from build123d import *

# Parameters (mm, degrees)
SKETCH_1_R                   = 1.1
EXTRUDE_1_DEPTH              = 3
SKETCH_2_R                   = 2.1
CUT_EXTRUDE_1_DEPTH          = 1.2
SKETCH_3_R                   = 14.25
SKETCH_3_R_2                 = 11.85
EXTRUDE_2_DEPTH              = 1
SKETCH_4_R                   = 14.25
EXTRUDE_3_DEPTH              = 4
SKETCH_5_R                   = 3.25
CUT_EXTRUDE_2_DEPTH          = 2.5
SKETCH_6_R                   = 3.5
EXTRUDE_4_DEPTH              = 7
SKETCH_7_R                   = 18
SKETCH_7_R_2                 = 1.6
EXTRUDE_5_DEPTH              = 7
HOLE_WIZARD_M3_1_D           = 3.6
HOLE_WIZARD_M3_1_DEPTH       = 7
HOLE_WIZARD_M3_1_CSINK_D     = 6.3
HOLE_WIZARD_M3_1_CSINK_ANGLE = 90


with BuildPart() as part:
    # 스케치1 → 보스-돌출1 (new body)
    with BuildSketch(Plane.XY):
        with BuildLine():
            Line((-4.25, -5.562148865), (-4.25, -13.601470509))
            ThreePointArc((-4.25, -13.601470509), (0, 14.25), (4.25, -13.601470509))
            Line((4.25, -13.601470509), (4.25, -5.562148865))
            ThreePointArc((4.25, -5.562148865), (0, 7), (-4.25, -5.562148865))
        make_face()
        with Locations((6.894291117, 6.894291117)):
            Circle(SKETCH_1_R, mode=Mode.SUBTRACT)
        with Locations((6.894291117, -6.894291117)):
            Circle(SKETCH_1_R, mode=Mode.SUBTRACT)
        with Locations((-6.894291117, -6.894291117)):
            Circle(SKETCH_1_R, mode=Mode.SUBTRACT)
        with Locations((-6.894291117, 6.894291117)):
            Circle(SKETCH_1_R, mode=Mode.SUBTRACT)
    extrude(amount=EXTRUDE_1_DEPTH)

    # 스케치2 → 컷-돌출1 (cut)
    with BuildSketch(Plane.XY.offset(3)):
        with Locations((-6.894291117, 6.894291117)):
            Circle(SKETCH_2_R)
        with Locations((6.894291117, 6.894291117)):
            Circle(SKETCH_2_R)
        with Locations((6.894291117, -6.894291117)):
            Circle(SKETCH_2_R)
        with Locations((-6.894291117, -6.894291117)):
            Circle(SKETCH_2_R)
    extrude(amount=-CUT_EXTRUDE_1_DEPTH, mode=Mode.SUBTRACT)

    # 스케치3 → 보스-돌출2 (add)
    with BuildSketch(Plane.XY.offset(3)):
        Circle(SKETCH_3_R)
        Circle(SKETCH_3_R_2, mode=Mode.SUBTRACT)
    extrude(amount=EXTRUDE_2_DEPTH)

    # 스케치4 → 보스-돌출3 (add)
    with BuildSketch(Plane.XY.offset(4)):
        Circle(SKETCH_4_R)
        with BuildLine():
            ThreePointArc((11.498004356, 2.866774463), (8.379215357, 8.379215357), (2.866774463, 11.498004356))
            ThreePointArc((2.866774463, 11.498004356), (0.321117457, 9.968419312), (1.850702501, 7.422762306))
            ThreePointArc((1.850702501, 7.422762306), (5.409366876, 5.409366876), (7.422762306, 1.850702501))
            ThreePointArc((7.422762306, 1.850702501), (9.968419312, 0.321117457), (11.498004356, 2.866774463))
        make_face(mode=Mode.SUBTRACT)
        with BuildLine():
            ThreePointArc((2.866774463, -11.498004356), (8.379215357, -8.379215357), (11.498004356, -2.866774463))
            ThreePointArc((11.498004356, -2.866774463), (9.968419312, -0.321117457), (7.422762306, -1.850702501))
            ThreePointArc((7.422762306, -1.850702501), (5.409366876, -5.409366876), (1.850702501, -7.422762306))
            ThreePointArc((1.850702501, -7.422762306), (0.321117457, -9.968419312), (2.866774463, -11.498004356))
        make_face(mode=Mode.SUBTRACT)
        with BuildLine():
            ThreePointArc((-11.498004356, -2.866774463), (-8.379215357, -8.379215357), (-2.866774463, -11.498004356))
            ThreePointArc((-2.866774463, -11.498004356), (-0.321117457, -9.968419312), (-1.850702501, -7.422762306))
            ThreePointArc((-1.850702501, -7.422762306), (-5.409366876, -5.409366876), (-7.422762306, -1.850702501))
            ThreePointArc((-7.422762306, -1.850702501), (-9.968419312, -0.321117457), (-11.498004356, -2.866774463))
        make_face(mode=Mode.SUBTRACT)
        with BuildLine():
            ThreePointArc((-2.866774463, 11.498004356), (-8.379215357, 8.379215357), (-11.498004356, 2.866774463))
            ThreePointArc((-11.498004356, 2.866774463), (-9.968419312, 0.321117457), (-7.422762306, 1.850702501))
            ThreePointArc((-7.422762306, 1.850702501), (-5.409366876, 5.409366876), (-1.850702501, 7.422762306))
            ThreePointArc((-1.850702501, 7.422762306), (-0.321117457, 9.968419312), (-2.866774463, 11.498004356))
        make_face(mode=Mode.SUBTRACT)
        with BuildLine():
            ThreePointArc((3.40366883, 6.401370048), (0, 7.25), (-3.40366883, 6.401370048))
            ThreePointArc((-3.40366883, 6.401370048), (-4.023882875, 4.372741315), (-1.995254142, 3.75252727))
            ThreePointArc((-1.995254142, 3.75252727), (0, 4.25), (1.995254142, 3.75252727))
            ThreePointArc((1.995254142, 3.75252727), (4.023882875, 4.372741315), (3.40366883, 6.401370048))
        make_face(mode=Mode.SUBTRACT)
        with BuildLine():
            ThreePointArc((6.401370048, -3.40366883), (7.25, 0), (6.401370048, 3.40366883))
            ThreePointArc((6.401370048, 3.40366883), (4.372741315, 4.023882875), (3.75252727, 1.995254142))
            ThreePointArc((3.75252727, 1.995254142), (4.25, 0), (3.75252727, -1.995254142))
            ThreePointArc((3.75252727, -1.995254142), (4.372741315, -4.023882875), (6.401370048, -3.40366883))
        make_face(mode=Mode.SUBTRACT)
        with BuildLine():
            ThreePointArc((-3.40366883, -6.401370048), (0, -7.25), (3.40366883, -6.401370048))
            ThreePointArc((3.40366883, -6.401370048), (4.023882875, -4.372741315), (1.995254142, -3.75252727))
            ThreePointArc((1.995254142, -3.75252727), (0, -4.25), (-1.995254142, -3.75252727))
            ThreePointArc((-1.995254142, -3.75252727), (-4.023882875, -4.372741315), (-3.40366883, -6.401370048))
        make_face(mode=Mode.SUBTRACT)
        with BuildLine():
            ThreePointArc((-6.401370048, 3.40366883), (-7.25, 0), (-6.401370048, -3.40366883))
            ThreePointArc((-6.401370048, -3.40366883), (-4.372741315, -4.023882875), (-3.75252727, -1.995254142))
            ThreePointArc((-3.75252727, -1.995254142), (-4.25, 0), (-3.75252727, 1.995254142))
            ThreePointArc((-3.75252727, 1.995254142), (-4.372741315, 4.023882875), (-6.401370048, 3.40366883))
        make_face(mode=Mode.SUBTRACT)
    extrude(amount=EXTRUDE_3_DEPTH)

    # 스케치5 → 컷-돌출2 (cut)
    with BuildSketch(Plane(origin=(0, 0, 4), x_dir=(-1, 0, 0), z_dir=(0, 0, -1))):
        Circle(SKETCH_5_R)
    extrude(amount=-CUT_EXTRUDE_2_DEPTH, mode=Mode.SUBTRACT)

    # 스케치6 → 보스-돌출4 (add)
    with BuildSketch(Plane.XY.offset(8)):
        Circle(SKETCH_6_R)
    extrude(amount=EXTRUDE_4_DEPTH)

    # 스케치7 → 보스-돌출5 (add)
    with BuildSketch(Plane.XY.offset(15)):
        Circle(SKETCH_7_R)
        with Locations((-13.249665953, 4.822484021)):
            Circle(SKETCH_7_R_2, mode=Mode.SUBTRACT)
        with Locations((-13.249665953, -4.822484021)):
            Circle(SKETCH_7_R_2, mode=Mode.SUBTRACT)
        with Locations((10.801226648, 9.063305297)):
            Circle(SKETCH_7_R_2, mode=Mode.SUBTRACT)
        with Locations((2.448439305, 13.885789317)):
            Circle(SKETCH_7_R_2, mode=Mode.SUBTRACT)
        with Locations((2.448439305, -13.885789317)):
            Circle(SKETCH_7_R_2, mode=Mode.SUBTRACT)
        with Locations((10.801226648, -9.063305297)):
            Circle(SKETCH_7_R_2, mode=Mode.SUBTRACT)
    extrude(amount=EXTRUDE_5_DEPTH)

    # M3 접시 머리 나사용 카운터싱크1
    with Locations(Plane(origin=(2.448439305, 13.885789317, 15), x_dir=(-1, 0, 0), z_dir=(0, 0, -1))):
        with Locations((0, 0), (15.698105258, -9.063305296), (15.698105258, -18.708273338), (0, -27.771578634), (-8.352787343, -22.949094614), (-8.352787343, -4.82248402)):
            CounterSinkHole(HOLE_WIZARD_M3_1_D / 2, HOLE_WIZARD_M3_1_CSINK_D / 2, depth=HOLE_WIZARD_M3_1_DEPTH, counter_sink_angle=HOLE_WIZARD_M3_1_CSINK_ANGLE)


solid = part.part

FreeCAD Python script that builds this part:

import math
import FreeCAD as App
import Part
import Sketcher
from FreeCAD import Vector
Q = App.Units.Quantity

doc = App.newDocument("Part")
body = doc.addObject("PartDesign::Body", "Body")

# Sketch on XY plane
sketch1 = body.newObject("Sketcher::SketchObject", "Sketch")
sketch1.AttachmentSupport = (doc.getObject("XY_Plane"), [""])
sketch1.MapMode = "FlatFace"
sketch1.addGeometry([
    Part.LineSegment(Vector(-4.2, -13.6, 0), Vector(-4.2, -5.6, 0)),  # 0
    Part.ArcOfCircle(Part.Circle(Vector(0, 0, 0), Vector(0, 0, 1), 7), math.radians(-53), math.radians(233)),  # 1
    Part.LineSegment(Vector(4.2, -5.6, 0), Vector(4.2, -13.6, 0)),  # 2
    Part.ArcOfCircle(Part.Circle(Vector(0, 0, 0), Vector(0, 0, 1), 14.2), math.radians(-73), math.radians(253)),  # 3
    Part.Circle(Vector(6.9, -6.9, 0), Vector(0, 0, 1), 1.1),  # 4
    Part.Circle(Vector(-6.9, -6.9, 0), Vector(0, 0, 1), 1.1),  # 5
    Part.Circle(Vector(6.9, 6.9, 0), Vector(0, 0, 1), 1.1),  # 6
    Part.Circle(Vector(-6.9, 6.9, 0), Vector(0, 0, 1), 1.1),  # 7
], False)
sketch1.addConstraint([
    Sketcher.Constraint("Coincident", 0, 2, 1, 2),
    Sketcher.Constraint("Coincident", 1, 1, 2, 1),
    Sketcher.Constraint("Coincident", 2, 2, 3, 1),
    Sketcher.Constraint("Coincident", 3, 2, 0, 1),
    Sketcher.Constraint("Vertical", 0),
    Sketcher.Constraint("Vertical", 2),
    Sketcher.Constraint("Coincident", 1, 3, -1, 1),
    Sketcher.Constraint("Coincident", 3, 3, -1, 1),
    Sketcher.Constraint("Equal", 4, 5),
    Sketcher.Constraint("Equal", 5, 6),
    Sketcher.Constraint("Equal", 6, 7),
    Sketcher.Constraint("Symmetric", 5, 3, 6, 3, -1, 1),
    Sketcher.Constraint("Symmetric", 4, 3, 7, 3, -1, 1),
    Sketcher.Constraint("Symmetric", 4, 3, 5, 3, -2),
    Sketcher.Constraint("Horizontal", 0, 2, 1, 1),
    Sketcher.Constraint("Radius", 1, Q("7 mm")),
    Sketcher.Constraint("Diameter", 4, Q("2.2 mm")),
    Sketcher.Constraint("Radius", 3, Q("14.25 mm")),
    Sketcher.Constraint("DistanceX", 0, 2, 1, 1, Q("8.5 mm")),
    Sketcher.Constraint("DistanceX", -1, 1, 4, 3, Q("6.894291 mm")),
    Sketcher.Constraint("DistanceY", 4, 3, -1, 1, Q("6.894291 mm")),
])
pad1 = body.newObject("PartDesign::Pad", "Pad")
pad1.Profile = sketch1
pad1.Length = 3

# Sketch on XY plane
sketch2 = body.newObject("Sketcher::SketchObject", "Sketch001")
sketch2.AttachmentSupport = (doc.getObject("XY_Plane"), [""])
sketch2.MapMode = "FlatFace"
sketch2.AttachmentOffset = App.Placement(Vector(0, 0, 3), App.Rotation())
sketch2.addGeometry([
    Part.Circle(Vector(-6.9, 6.9, 0), Vector(0, 0, 1), 2.1),
    Part.Circle(Vector(6.9, 6.9, 0), Vector(0, 0, 1), 2.1),
    Part.Circle(Vector(6.9, -6.9, 0), Vector(0, 0, 1), 2.1),
    Part.Circle(Vector(-6.9, -6.9, 0), Vector(0, 0, 1), 2.1),
], False)
sketch2.addConstraint([
    Sketcher.Constraint("Equal", 0, 1),
    Sketcher.Constraint("Equal", 1, 2),
    Sketcher.Constraint("Equal", 2, 3),
    Sketcher.Constraint("Symmetric", 0, 3, 2, 3, -1, 1),
    Sketcher.Constraint("Symmetric", 1, 3, 3, 3, -1, 1),
    Sketcher.Constraint("Symmetric", 0, 3, 1, 3, -2),
    Sketcher.Constraint("Diameter", 0, Q("4.2 mm")),
    Sketcher.Constraint("DistanceX", 0, 3, -1, 1, Q("6.894291 mm")),
    Sketcher.Constraint("DistanceY", -1, 1, 0, 3, Q("6.894291 mm")),
])
pocket1 = body.newObject("PartDesign::Pocket", "Pocket")
pocket1.Profile = sketch2
pocket1.Length = 1.2

# Sketch on XY plane
sketch3 = body.newObject("Sketcher::SketchObject", "Sketch002")
sketch3.AttachmentSupport = (doc.getObject("XY_Plane"), [""])
sketch3.MapMode = "FlatFace"
sketch3.AttachmentOffset = App.Placement(Vector(0, 0, 3), App.Rotation())
sketch3.addGeometry([
    Part.Circle(Vector(0, 0, 0), Vector(0, 0, 1), 14),
    Part.Circle(Vector(0, 0, 0), Vector(0, 0, 1), 12),
], False)
sketch3.addConstraint([
    Sketcher.Constraint("Coincident", 0, 3, -1, 1),
    Sketcher.Constraint("Coincident", 1, 3, -1, 1),
    Sketcher.Constraint("Diameter", 0, Q("28.5 mm")),
    Sketcher.Constraint("Diameter", 1, Q("23.7 mm")),
])
pad2 = body.newObject("PartDesign::Pad", "Pad001")
pad2.Profile = sketch3
pad2.Length = 1

# Sketch on XY plane
sketch4 = body.newObject("Sketcher::SketchObject", "Sketch003")
sketch4.AttachmentSupport = (doc.getObject("XY_Plane"), [""])
sketch4.MapMode = "FlatFace"
sketch4.AttachmentOffset = App.Placement(Vector(0, 0, 4), App.Rotation())
sketch4.addGeometry([
    Part.Circle(Vector(0, 0, 0), Vector(0, 0, 1), 14.2),  # 0
    Part.ArcOfCircle(Part.Circle(Vector(0, 0, 0), Vector(0, 0, 1), 11.8), math.radians(-166), math.radians(-104)),  # 1
    Part.ArcOfCircle(Part.Circle(Vector(-9.5, -2.4, 0), Vector(0, 0, 1), 2.1), math.radians(14), math.radians(194)),  # 2
    Part.ArcOfCircle(Part.Circle(Vector(0, 0, 0), Vector(0, 0, 1), 7.7), math.radians(-166), math.radians(-104)),  # 3
    Part.ArcOfCircle(Part.Circle(Vector(-2.4, -9.5, 0), Vector(0, 0, 1), 2.1), math.radians(-104), math.radians(76)),  # 4
    Part.ArcOfCircle(Part.Circle(Vector(0, 0, 0), Vector(0, 0, 1), 7.2), math.radians(-118), math.radians(-62)),  # 5
    Part.ArcOfCircle(Part.Circle(Vector(-2.7, -5.1, 0), Vector(0, 0, 1), 1.5), math.radians(62), math.radians(242)),  # 6
    Part.ArcOfCircle(Part.Circle(Vector(0, 0, 0), Vector(0, 0, 1), 4.3), math.radians(-118), math.radians(-62)),  # 7
    Part.ArcOfCircle(Part.Circle(Vector(2.7, -5.1, 0), Vector(0, 0, 1), 1.5), math.radians(-62), math.radians(118)),  # 8
    Part.ArcOfCircle(Part.Circle(Vector(0, 0, 0), Vector(0, 0, 1), 7.2), math.radians(152), math.radians(208)),  # 9
    Part.ArcOfCircle(Part.Circle(Vector(-5.1, 2.7, 0), Vector(0, 0, 1), 1.5), math.radians(-28), math.radians(152)),  # 10
    Part.ArcOfCircle(Part.Circle(Vector(0, 0, 0), Vector(0, 0, 1), 4.3), math.radians(152), math.radians(208)),  # 11
    Part.ArcOfCircle(Part.Circle(Vector(-5.1, -2.7, 0), Vector(0, 0, 1), 1.5), math.radians(-152), math.radians(28)),  # 12
    Part.ArcOfCircle(Part.Circle(Vector(0, 0, 0), Vector(0, 0, 1), 11.8), math.radians(-76), math.radians(-14)),  # 13
    Part.ArcOfCircle(Part.Circle(Vector(2.4, -9.5, 0), Vector(0, 0, 1), 2.1), math.radians(104), math.radians(284)),  # 14
    Part.ArcOfCircle(Part.Circle(Vector(0, 0, 0), Vector(0, 0, 1), 7.7), math.radians(-76), math.radians(-14)),  # 15
    Part.ArcOfCircle(Part.Circle(Vector(9.5, -2.4, 0), Vector(0, 0, 1), 2.1), math.radians(-14), math.radians(166)),  # 16
    Part.ArcOfCircle(Part.Circle(Vector(0, 0, 0), Vector(0, 0, 1), 7.2), math.radians(-28), math.radians(28)),  # 17
    Part.ArcOfCircle(Part.Circle(Vector(5.1, -2.7, 0), Vector(0, 0, 1), 1.5), math.radians(152), math.radians(332)),  # 18
    Part.ArcOfCircle(Part.Circle(Vector(0, 0, 0), Vector(0, 0, 1), 4.3), math.radians(-28), math.radians(28)),  # 19
    Part.ArcOfCircle(Part.Circle(Vector(5.1, 2.7, 0), Vector(0, 0, 1), 1.5), math.radians(28), math.radians(208)),  # 20
    Part.ArcOfCircle(Part.Circle(Vector(0, 0, 0), Vector(0, 0, 1), 11.8), math.radians(104), math.radians(166)),  # 21
    Part.ArcOfCircle(Part.Circle(Vector(-2.4, 9.5, 0), Vector(0, 0, 1), 2.1), math.radians(-76), math.radians(104)),  # 22
    Part.ArcOfCircle(Part.Circle(Vector(0, 0, 0), Vector(0, 0, 1), 7.7), math.radians(104), math.radians(166)),  # 23
    Part.ArcOfCircle(Part.Circle(Vector(-9.5, 2.4, 0), Vector(0, 0, 1), 2.1), math.radians(166), math.radians(346)),  # 24
    Part.ArcOfCircle(Part.Circle(Vector(0, 0, 0), Vector(0, 0, 1), 7.2), math.radians(62), math.radians(118)),  # 25
    Part.ArcOfCircle(Part.Circle(Vector(2.7, 5.1, 0), Vector(0, 0, 1), 1.5), math.radians(-118), math.radians(62)),  # 26
    Part.ArcOfCircle(Part.Circle(Vector(0, 0, 0), Vector(0, 0, 1), 4.3), math.radians(62), math.radians(118)),  # 27
    Part.ArcOfCircle(Part.Circle(Vector(-2.7, 5.1, 0), Vector(0, 0, 1), 1.5), math.radians(118), math.radians(298)),  # 28
    Part.ArcOfCircle(Part.Circle(Vector(0, 0, 0), Vector(0, 0, 1), 11.8), math.radians(14), math.radians(76)),  # 29
    Part.ArcOfCircle(Part.Circle(Vector(9.5, 2.4, 0), Vector(0, 0, 1), 2.1), math.radians(-166), math.radians(14)),  # 30
    Part.ArcOfCircle(Part.Circle(Vector(0, 0, 0), Vector(0, 0, 1), 7.7), math.radians(14), math.radians(76)),  # 31
    Part.ArcOfCircle(Part.Circle(Vector(2.4, 9.5, 0), Vector(0, 0, 1), 2.1), math.radians(76), math.radians(256)),  # 32
], False)
sketch4.addConstraint([
    Sketcher.Constraint("Tangent", 1, 1, 2, 2),
    Sketcher.Constraint("Tangent", 2, 1, 3, 1),
    Sketcher.Constraint("Tangent", 3, 2, 4, 2),
    Sketcher.Constraint("Tangent", 4, 1, 1, 2),
    Sketcher.Constraint("Tangent", 5, 1, 6, 2),
    Sketcher.Constraint("Tangent", 6, 1, 7, 1),
    Sketcher.Constraint("Tangent", 7, 2, 8, 2),
    Sketcher.Constraint("Tangent", 8, 1, 5, 2),
    Sketcher.Constraint("Tangent", 9, 1, 10, 2),
    Sketcher.Constraint("Tangent", 10, 1, 11, 1),
    Sketcher.Constraint("Tangent", 11, 2, 12, 2),
    Sketcher.Constraint("Tangent", 12, 1, 9, 2),
    Sketcher.Constraint("Tangent", 13, 1, 14, 2),
    Sketcher.Constraint("Tangent", 14, 1, 15, 1),
    Sketcher.Constraint("Tangent", 15, 2, 16, 2),
    Sketcher.Constraint("Tangent", 16, 1, 13, 2),
    Sketcher.Constraint("Tangent", 17, 1, 18, 2),
    Sketcher.Constraint("Tangent", 18, 1, 19, 1),
    Sketcher.Constraint("Tangent", 19, 2, 20, 2),
    Sketcher.Constraint("Tangent", 20, 1, 17, 2),
    Sketcher.Constraint("Tangent", 21, 1, 22, 2),
    Sketcher.Constraint("Tangent", 22, 1, 23, 1),
    Sketcher.Constraint("Tangent", 23, 2, 24, 2),
    Sketcher.Constraint("Tangent", 24, 1, 21, 2),
    Sketcher.Constraint("Tangent", 25, 1, 26, 2),
    Sketcher.Constraint("Tangent", 26, 1, 27, 1),
    Sketcher.Constraint("Tangent", 27, 2, 28, 2),
    Sketcher.Constraint("Tangent", 28, 1, 25, 2),
    Sketcher.Constraint("Tangent", 29, 1, 30, 2),
    Sketcher.Constraint("Tangent", 30, 1, 31, 1),
    Sketcher.Constraint("Tangent", 31, 2, 32, 2),
    Sketcher.Constraint("Tangent", 32, 1, 29, 2),
    Sketcher.Constraint("Coincident", 0, 3, -1, 1),
    Sketcher.Constraint("Coincident", 1, 3, -1, 1),
    Sketcher.Constraint("Coincident", 3, 3, -1, 1),
    Sketcher.Constraint("Coincident", 5, 3, -1, 1),
    Sketcher.Constraint("Coincident", 7, 3, -1, 1),
    Sketcher.Constraint("Coincident", 9, 3, -1, 1),
    Sketcher.Constraint("Coincident", 11, 3, -1, 1),
    Sketcher.Constraint("Coincident", 13, 3, -1, 1),
    Sketcher.Constraint("Coincident", 15, 3, -1, 1),
    Sketcher.Constraint("Coincident", 17, 3, -1, 1),
    Sketcher.Constraint("Coincident", 19, 3, -1, 1),
    Sketcher.Constraint("Coincident", 21, 3, -1, 1),
    Sketcher.Constraint("Coincident", 23, 3, -1, 1),
    Sketcher.Constraint("Coincident", 25, 3, -1, 1),
    Sketcher.Constraint("Coincident", 27, 3, -1, 1),
    Sketcher.Constraint("Coincident", 29, 3, -1, 1),
    Sketcher.Constraint("Coincident", 31, 3, -1, 1),
    Sketcher.Constraint("Equal", 5, 9),
    Sketcher.Constraint("Equal", 8, 10),
    Sketcher.Constraint("Equal", 1, 13),
    Sketcher.Constraint("Equal", 4, 14),
    Sketcher.Constraint("Equal", 9, 17),
    Sketcher.Constraint("Equal", 12, 18),
    Sketcher.Constraint("Equal", 13, 21),
    Sketcher.Constraint("Equal", 16, 22),
    Sketcher.Constraint("Equal", 17, 25),
    Sketcher.Constraint("Equal", 20, 26),
    Sketcher.Constraint("Equal", 21, 29),
    Sketcher.Constraint("Equal", 24, 30),
    Sketcher.Constraint("Horizontal", 6, 3, 8, 3),
    Sketcher.Constraint("Horizontal", 4, 3, 14, 3),
    Sketcher.Constraint("Horizontal", 2, 3, 16, 3),
    Sketcher.Constraint("Horizontal", 12, 3, 18, 3),
    Sketcher.Constraint("Horizontal", 10, 3, 20, 3),
    Sketcher.Constraint("Horizontal", 26, 3, 28, 3),
    Sketcher.Constraint("Horizontal", 24, 3, 30, 3),
    Sketcher.Constraint("Horizontal", 22, 3, 32, 3),
    Sketcher.Constraint("Vertical", 10, 3, 12, 3),
    Sketcher.Constraint("Vertical", 4, 3, 22, 3),
    Sketcher.Constraint("Vertical", 2, 3, 24, 3),
    Sketcher.Constraint("Vertical", 8, 3, 26, 3),
    Sketcher.Constraint("Diameter", 0, Q("28.5 mm")),
    Sketcher.Constraint("Radius", 2, Q("2.1 mm")),
    Sketcher.Constraint("Radius", 6, Q("1.5 mm")),
    Sketcher.Constraint("Radius", 1, Q("11.85 mm")),
    Sketcher.Constraint("Radius", 5, Q("7.25 mm")),
    Sketcher.Constraint("DistanceY", 2, 3, -1, 1, Q("2.358738 mm")),
    Sketcher.Constraint("DistanceX", 4, 3, -1, 1, Q("2.358738 mm")),
    Sketcher.Constraint("DistanceX", 6, 3, -1, 1, Q("2.699461 mm")),
    Sketcher.Constraint("DistanceX", 10, 3, -1, 1, Q("5.076949 mm")),
])
pad3 = body.newObject("PartDesign::Pad", "Pad002")
pad3.Profile = sketch4
pad3.Length = 4

# Sketch on XY plane
sketch5 = body.newObject("Sketcher::SketchObject", "Sketch004")
sketch5.AttachmentSupport = (doc.getObject("XY_Plane"), [""])
sketch5.MapMode = "FlatFace"
sketch5.AttachmentOffset = App.Placement(Vector(0, 0, 4), App.Rotation())
sketch5.addGeometry(Part.Circle(Vector(0, 0, 0), Vector(0, 0, 1), 3.2), False)
sketch5.addConstraint([
    Sketcher.Constraint("Coincident", 0, 3, -1, 1),
    Sketcher.Constraint("Diameter", 0, Q("6.5 mm")),
])
pocket2 = body.newObject("PartDesign::Pocket", "Pocket001")
pocket2.Profile = sketch5
pocket2.Length = 2.5
pocket2.Reversed = True

# Sketch on XY plane
sketch6 = body.newObject("Sketcher::SketchObject", "Sketch005")
sketch6.AttachmentSupport = (doc.getObject("XY_Plane"), [""])
sketch6.MapMode = "FlatFace"
sketch6.AttachmentOffset = App.Placement(Vector(0, 0, 8), App.Rotation())
sketch6.addGeometry(Part.Circle(Vector(0, 0, 0), Vector(0, 0, 1), 3.5), False)
sketch6.addConstraint([
    Sketcher.Constraint("Coincident", 0, 3, -1, 1),
    Sketcher.Constraint("Diameter", 0, Q("7 mm")),
])
pad4 = body.newObject("PartDesign::Pad", "Pad003")
pad4.Profile = sketch6
pad4.Length = 7

# Sketch on XY plane
sketch7 = body.newObject("Sketcher::SketchObject", "Sketch006")
sketch7.AttachmentSupport = (doc.getObject("XY_Plane"), [""])
sketch7.MapMode = "FlatFace"
sketch7.AttachmentOffset = App.Placement(Vector(0, 0, 15), App.Rotation())
sketch7.addGeometry([
    Part.Circle(Vector(0, 0, 0), Vector(0, 0, 1), 18),  # 0
    Part.Circle(Vector(-13.2, -4.8, 0), Vector(0, 0, 1), 1.6),  # 1
    Part.Circle(Vector(2.4, -13.9, 0), Vector(0, 0, 1), 1.6),  # 2
    Part.Circle(Vector(10.8, -9.1, 0), Vector(0, 0, 1), 1.6),  # 3
    Part.Circle(Vector(-13.2, 4.8, 0), Vector(0, 0, 1), 1.6),  # 4
    Part.Circle(Vector(2.4, 13.9, 0), Vector(0, 0, 1), 1.6),  # 5
    Part.Circle(Vector(10.8, 9.1, 0), Vector(0, 0, 1), 1.6),  # 6
], False)
sketch7.addConstraint([
    Sketcher.Constraint("Coincident", 0, 3, -1, 1),
    Sketcher.Constraint("Equal", 1, 2),
    Sketcher.Constraint("Equal", 2, 3),
    Sketcher.Constraint("Equal", 3, 4),
    Sketcher.Constraint("Equal", 4, 5),
    Sketcher.Constraint("Equal", 5, 6),
    Sketcher.Constraint("Symmetric", 1, 3, 4, 3, -1),
    Sketcher.Constraint("Symmetric", 2, 3, 5, 3, -1),
    Sketcher.Constraint("Symmetric", 3, 3, 6, 3, -1),
    Sketcher.Constraint("Diameter", 0, Q("36 mm")),
    Sketcher.Constraint("Diameter", 1, Q("3.2 mm")),
    Sketcher.Constraint("DistanceX", -1, 1, 2, 3, Q("2.448439 mm")),
    Sketcher.Constraint("DistanceY", 2, 3, -1, 1, Q("13.885789 mm")),
    Sketcher.Constraint("DistanceY", 3, 3, 1, 3, Q("4.240821 mm")),
    Sketcher.Constraint("DistanceY", 1, 3, 4, 3, Q("9.644968 mm")),
    Sketcher.Constraint("DistanceX", 1, 3, -1, 1, Q("13.249666 mm")),
    Sketcher.Constraint("DistanceX", -1, 1, 3, 3, Q("10.801227 mm")),
])
pad5 = body.newObject("PartDesign::Pad", "Pad004")
pad5.Profile = sketch7
pad5.Length = 7

# Sketch on XY plane
sketch8 = body.newObject("Sketcher::SketchObject", "Sketch007")
sketch8.AttachmentSupport = (doc.getObject("XY_Plane"), [""])
sketch8.MapMode = "FlatFace"
sketch8.AttachmentOffset = App.Placement(Vector(0, 0, 15), App.Rotation())
sketch8.addGeometry([
    Part.Circle(Vector(2.4, 13.9, 0), Vector(0, 0, 1), 1.8),  # 0
    Part.Circle(Vector(-13.2, 4.8, 0), Vector(0, 0, 1), 1.8),  # 1
    Part.Circle(Vector(-13.2, -4.8, 0), Vector(0, 0, 1), 1.8),  # 2
    Part.Circle(Vector(2.4, -13.9, 0), Vector(0, 0, 1), 1.8),  # 3
    Part.Circle(Vector(10.8, -9.1, 0), Vector(0, 0, 1), 1.8),  # 4
    Part.Circle(Vector(10.8, 9.1, 0), Vector(0, 0, 1), 1.8),  # 5
], False)
sketch8.addConstraint([
    Sketcher.Constraint("Equal", 0, 1),
    Sketcher.Constraint("Equal", 1, 2),
    Sketcher.Constraint("Equal", 2, 3),
    Sketcher.Constraint("Equal", 3, 4),
    Sketcher.Constraint("Equal", 4, 5),
    Sketcher.Constraint("Symmetric", 1, 3, 2, 3, -1),
    Sketcher.Constraint("Symmetric", 0, 3, 3, 3, -1),
    Sketcher.Constraint("Symmetric", 4, 3, 5, 3, -1),
    Sketcher.Constraint("Diameter", 0, Q("3.6 mm")),
    Sketcher.Constraint("DistanceX", -1, 1, 0, 3, Q("2.448439 mm")),
    Sketcher.Constraint("DistanceY", -1, 1, 0, 3, Q("13.885789 mm")),
    Sketcher.Constraint("DistanceY", 2, 3, 1, 3, Q("9.644968 mm")),
    Sketcher.Constraint("DistanceY", 4, 3, 2, 3, Q("4.240821 mm")),
    Sketcher.Constraint("DistanceX", 1, 3, -1, 1, Q("13.249666 mm")),
    Sketcher.Constraint("DistanceX", -1, 1, 4, 3, Q("10.801227 mm")),
])
doc.recompute()
hole = body.newObject("PartDesign::Hole", "Hole")
hole.Profile = sketch8
hole.ThreadType = "None"
hole.Diameter = 3.6
hole.DepthType = "Dimension"
hole.Depth = 7
hole.DrillPoint = "Flat"
hole.HoleCutType = "Countersink"
hole.HoleCutDiameter = 6.3
hole.HoleCutCountersinkAngle = 90
hole.Reversed = True

doc.recompute()
